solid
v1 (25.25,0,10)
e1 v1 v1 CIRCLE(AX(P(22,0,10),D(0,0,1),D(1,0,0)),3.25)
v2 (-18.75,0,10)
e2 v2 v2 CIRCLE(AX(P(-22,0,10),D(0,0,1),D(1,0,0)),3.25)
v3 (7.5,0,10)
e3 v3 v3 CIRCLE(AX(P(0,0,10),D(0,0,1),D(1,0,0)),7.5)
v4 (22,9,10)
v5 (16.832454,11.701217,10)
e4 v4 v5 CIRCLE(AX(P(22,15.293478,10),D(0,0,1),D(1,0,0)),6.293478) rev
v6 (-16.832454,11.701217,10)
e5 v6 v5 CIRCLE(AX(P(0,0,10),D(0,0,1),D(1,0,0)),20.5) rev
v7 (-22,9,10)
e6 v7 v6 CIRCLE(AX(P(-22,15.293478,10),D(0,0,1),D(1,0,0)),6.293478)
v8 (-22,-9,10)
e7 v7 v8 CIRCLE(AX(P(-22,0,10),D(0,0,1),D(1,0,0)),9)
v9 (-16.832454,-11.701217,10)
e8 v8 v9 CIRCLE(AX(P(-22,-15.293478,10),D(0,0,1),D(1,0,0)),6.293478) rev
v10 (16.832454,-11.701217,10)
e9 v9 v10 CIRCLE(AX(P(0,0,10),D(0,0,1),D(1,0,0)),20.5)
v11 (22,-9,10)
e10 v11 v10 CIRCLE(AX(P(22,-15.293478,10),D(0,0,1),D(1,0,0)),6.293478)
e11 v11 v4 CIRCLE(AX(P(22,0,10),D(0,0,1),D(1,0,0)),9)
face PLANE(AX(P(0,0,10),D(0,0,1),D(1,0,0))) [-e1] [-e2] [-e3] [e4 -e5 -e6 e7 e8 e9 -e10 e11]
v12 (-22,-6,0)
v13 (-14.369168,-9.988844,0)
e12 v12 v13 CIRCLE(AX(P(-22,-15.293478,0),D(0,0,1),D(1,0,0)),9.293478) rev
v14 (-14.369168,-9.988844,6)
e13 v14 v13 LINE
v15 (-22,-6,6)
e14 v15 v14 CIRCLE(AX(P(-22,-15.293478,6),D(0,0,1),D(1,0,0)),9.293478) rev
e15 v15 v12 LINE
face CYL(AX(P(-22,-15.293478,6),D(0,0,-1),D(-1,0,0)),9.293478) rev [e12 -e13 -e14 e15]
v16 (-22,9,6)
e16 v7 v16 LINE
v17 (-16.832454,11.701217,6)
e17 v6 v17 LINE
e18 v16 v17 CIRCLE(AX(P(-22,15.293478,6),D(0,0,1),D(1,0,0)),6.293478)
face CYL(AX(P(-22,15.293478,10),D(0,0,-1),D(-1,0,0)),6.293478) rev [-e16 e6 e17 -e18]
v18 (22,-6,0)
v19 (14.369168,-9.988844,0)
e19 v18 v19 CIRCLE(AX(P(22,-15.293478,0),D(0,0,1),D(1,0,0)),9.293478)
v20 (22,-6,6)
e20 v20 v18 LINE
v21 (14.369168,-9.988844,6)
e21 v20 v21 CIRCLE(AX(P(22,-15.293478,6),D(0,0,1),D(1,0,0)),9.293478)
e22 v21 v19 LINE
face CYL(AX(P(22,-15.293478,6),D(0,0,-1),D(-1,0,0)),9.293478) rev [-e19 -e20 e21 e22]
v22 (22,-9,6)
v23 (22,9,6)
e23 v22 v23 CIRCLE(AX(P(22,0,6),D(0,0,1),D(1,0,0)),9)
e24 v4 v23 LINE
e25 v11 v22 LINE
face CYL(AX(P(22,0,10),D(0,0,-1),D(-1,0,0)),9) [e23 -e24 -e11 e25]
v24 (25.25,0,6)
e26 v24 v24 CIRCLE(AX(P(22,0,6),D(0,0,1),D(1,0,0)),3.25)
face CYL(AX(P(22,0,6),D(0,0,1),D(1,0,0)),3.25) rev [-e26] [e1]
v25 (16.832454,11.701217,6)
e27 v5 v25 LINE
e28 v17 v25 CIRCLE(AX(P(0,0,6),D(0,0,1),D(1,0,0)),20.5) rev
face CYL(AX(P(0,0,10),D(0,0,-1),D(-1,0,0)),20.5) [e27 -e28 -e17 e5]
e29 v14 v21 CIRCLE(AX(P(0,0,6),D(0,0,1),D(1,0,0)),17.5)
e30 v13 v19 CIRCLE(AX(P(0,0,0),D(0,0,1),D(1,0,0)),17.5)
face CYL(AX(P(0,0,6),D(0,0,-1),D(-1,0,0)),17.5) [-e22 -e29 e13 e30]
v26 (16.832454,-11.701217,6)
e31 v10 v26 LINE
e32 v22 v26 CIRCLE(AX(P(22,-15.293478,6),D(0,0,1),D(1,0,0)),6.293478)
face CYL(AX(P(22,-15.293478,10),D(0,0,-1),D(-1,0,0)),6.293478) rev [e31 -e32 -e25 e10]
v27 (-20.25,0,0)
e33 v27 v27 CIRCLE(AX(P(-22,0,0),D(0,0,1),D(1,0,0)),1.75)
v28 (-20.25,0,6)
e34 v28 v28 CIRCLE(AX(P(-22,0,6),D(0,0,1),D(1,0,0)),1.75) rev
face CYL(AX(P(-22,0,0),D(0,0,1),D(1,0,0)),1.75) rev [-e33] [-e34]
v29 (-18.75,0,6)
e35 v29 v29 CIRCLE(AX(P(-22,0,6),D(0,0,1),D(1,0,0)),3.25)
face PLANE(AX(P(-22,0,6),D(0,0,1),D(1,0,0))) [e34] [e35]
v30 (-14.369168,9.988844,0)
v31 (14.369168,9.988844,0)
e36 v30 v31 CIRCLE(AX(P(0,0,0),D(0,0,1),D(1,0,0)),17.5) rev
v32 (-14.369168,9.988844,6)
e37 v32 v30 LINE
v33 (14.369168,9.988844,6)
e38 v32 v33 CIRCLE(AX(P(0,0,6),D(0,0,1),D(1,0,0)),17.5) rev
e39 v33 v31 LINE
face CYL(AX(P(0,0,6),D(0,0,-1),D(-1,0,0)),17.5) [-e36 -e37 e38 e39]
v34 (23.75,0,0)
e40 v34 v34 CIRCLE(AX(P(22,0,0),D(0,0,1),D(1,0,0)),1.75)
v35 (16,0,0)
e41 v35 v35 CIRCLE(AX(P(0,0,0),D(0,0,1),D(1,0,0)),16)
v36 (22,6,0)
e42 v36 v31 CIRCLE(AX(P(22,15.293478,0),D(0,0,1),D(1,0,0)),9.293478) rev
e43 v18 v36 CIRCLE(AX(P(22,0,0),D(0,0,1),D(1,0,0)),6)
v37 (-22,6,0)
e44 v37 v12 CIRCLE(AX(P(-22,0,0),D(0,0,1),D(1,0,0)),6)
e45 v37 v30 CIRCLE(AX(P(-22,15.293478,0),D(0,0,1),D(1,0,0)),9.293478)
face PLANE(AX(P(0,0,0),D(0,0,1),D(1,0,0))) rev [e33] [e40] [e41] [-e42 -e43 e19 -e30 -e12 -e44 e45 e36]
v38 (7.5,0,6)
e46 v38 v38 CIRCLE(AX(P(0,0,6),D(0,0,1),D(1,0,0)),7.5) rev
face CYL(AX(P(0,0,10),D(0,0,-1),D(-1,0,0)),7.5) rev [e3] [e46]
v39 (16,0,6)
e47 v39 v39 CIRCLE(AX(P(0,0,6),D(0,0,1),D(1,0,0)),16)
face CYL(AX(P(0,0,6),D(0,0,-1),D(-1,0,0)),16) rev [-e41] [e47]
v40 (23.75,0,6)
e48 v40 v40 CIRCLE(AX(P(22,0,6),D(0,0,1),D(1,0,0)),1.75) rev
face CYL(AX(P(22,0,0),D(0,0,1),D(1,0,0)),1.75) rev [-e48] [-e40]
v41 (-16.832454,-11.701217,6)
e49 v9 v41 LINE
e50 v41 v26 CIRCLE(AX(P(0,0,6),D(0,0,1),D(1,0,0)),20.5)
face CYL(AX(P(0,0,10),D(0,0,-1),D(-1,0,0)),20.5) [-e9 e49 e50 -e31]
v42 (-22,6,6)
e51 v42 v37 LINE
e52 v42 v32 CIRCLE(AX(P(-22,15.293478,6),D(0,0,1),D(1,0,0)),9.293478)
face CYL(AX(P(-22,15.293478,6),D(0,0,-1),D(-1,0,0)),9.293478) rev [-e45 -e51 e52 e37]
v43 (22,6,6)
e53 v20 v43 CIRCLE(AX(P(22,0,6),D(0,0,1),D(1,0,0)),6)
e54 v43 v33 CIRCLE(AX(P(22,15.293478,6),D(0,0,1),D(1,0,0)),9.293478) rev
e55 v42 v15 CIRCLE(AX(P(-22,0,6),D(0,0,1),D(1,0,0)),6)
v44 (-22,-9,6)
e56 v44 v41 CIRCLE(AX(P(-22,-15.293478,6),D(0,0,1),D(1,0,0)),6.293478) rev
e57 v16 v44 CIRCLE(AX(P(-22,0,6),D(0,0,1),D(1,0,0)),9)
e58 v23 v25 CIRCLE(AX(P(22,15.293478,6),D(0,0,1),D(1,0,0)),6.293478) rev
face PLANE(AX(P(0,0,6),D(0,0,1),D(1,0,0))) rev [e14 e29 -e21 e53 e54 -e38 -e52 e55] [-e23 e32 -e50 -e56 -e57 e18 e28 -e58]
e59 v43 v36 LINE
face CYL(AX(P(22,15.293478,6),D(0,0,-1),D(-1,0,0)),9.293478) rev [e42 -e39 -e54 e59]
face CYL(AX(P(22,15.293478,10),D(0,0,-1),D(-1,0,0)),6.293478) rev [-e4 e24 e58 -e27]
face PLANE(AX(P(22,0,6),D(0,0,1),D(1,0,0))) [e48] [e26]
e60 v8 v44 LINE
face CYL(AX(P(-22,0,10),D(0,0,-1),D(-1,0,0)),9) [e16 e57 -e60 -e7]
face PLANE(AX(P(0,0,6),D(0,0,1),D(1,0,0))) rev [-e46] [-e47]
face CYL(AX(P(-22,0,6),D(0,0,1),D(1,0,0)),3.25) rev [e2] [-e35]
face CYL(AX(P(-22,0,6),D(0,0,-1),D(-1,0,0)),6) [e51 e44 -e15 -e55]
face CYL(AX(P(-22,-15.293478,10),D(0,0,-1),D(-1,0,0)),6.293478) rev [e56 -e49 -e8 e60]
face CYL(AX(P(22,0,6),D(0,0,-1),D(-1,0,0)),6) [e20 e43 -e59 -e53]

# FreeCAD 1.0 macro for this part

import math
import FreeCAD as App
import Part
import Sketcher

V = App.Vector

doc = App.newDocument("Part")
body = doc.addObject("PartDesign::Body", "Body")

# Sketch on XY plane
sketch1 = doc.addObject("Sketcher::SketchObject", "Sketch")
body.addObject(sketch1)
sketch1.AttachmentSupport = (doc.XY_Plane, [""])
sketch1.MapMode = "FlatFace"
sketch1.addGeometry([
    Part.ArcOfCircle(Part.Circle(V(-22, 15, 0), V(0, 0, 1), 6), math.radians(-90), math.radians(-35)),  # 0
    Part.ArcOfCircle(Part.Circle(V(-22, 0, 0), V(0, 0, 1), 9), math.radians(90), math.radians(270)),  # 1
    Part.ArcOfCircle(Part.Circle(V(-22, -15, 0), V(0, 0, 1), 6), math.radians(35), math.radians(90)),  # 2
    Part.ArcOfCircle(Part.Circle(V(0, 0, 0), V(0, 0, 1), 21), math.radians(-145), math.radians(-35)),  # 3
    Part.ArcOfCircle(Part.Circle(V(22, -15, 0), V(0, 0, 1), 6), math.radians(90), math.radians(145)),  # 4
    Part.ArcOfCircle(Part.Circle(V(22, 0, 0), V(0, 0, 1), 9), math.radians(-90), math.radians(90)),  # 5
    Part.ArcOfCircle(Part.Circle(V(22, 15, 0), V(0, 0, 1), 6), math.radians(-145), math.radians(-90)),  # 6
    Part.ArcOfCircle(Part.Circle(V(0, 0, 0), V(0, 0, 1), 21), math.radians(35), math.radians(145)),  # 7
], False)
sketch1.addConstraint([
    Sketcher.Constraint("Tangent", 0, 1, 1, 1),
    Sketcher.Constraint("Tangent", 1, 2, 2, 2),
    Sketcher.Constraint("Tangent", 2, 1, 3, 1),
    Sketcher.Constraint("Tangent", 3, 2, 4, 2),
    Sketcher.Constraint("Tangent", 4, 1, 5, 1),
    Sketcher.Constraint("Tangent", 5, 2, 6, 2),
    Sketcher.Constraint("Tangent", 6, 1, 7, 1),
    Sketcher.Constraint("Tangent", 7, 2, 0, 2),
    Sketcher.Constraint("Coincident", 3, 3, -1, 1),
    Sketcher.Constraint("Coincident", 7, 3, -1, 1),
    Sketcher.Constraint("Equal", 0, 2),
    Sketcher.Constraint("Equal", 2, 4),
    Sketcher.Constraint("Equal", 1, 5),
    Sketcher.Constraint("Equal", 4, 6),
    Sketcher.Constraint("Equal", 3, 7),
    Sketcher.Constraint("Symmetric", 1, 3, 5, 3, -1, 1),
    Sketcher.Constraint("PointOnObject", 1, 3, -1),
    Sketcher.Constraint("Vertical", 0, 3, 1, 3),
    Sketcher.Constraint("Radius", 1, 9.0),
    Sketcher.Constraint("Radius", 3, 20.5),
    Sketcher.Constraint("DistanceX", 0, 3, -1, 1, 22.0),
])
pad1 = doc.addObject("PartDesign::Pad", "Pad")
body.addObject(pad1)
pad1.Profile = sketch1
pad1.Length = 10

# Sketch on XY plane
sketch2 = doc.addObject("Sketcher::SketchObject", "Sketch001")
body.addObject(sketch2)
sketch2.AttachmentSupport = (doc.XY_Plane, [""])
sketch2.MapMode = "FlatFace"
sketch2.addGeometry([
    Part.Circle(V(0, 0, 0), V(0, 0, 1), 16),
    Part.Circle(V(0, 0, 0), V(0, 0, 1), 8),
], False)
sketch2.addConstraint([
    Sketcher.Constraint("Coincident", 0, 3, -1, 1),
    Sketcher.Constraint("Coincident", 1, 3, -1, 1),
    Sketcher.Constraint("Diameter", 0, 32.0),
    Sketcher.Constraint("Diameter", 1, 15.0),
])
pocket1 = doc.addObject("PartDesign::Pocket", "Pocket")
body.addObject(pocket1)
pocket1.Profile = sketch2
pocket1.Length = 6
pocket1.Reversed = True

# Sketch on XY plane
sketch3 = doc.addObject("Sketcher::SketchObject", "Sketch002")
body.addObject(sketch3)
sketch3.AttachmentSupport = (doc.XY_Plane, [""])
sketch3.MapMode = "FlatFace"
sketch3.addGeometry(Part.Circle(V(0, 0, 0), V(0, 0, 1), 8), False)
sketch3.addConstraint([
    Sketcher.Constraint("Coincident", 0, 3, -1, 1),
    Sketcher.Constraint("Diameter", 0, 15.0),
])
pocket2 = doc.addObject("PartDesign::Pocket", "Pocket001")
body.addObject(pocket2)
pocket2.Profile = sketch3
pocket2.Length = 10
pocket2.Reversed = True

# Sketch on XY plane
sketch4 = doc.addObject("Sketcher::SketchObject", "Sketch003")
body.addObject(sketch4)
sketch4.AttachmentSupport = (doc.XY_Plane, [""])
sketch4.MapMode = "FlatFace"
sketch4.addGeometry([
    Part.ArcOfCircle(Part.Circle(V(-22, 15, 0), V(0, 0, 1), 6), math.radians(-90), math.radians(-35)),  # 0
    Part.ArcOfCircle(Part.Circle(V(-22, 0, 0), V(0, 0, 1), 9), math.radians(90), math.radians(270)),  # 1
    Part.ArcOfCircle(Part.Circle(V(-22, -15, 0), V(0, 0, 1), 6), math.radians(35), math.radians(90)),  # 2
    Part.ArcOfCircle(Part.Circle(V(0, 0, 0), V(0, 0, 1), 21), math.radians(-145), math.radians(-35)),  # 3
    Part.ArcOfCircle(Part.Circle(V(22, -15, 0), V(0, 0, 1), 6), math.radians(90), math.radians(145)),  # 4
    Part.ArcOfCircle(Part.Circle(V(22, 0, 0), V(0, 0, 1), 9), math.radians(-90), math.radians(90)),  # 5
    Part.ArcOfCircle(Part.Circle(V(22, 15, 0), V(0, 0, 1), 6), math.radians(-145), math.radians(-90)),  # 6
    Part.ArcOfCircle(Part.Circle(V(0, 0, 0), V(0, 0, 1), 21), math.radians(35), math.radians(145)),  # 7
    Part.ArcOfCircle(Part.Circle(V(-22, -15, 0), V(0, 0, 1), 9), math.radians(35), math.radians(90)),  # 8
    Part.ArcOfCircle(Part.Circle(V(-22, 0, 0), V(0, 0, 1), 6), math.radians(90), math.radians(270)),  # 9
    Part.ArcOfCircle(Part.Circle(V(-22, 15, 0), V(0, 0, 1), 9), math.radians(-90), math.radians(-35)),  # 10
    Part.ArcOfCircle(Part.Circle(V(0, 0, 0), V(0, 0, 1), 17), math.radians(35), math.radians(145)),  # 11
    Part.ArcOfCircle(Part.Circle(V(22, 15, 0), V(0, 0, 1), 9), math.radians(-145), math.radians(-90)),  # 12
    Part.ArcOfCircle(Part.Circle(V(22, 0, 0), V(0, 0, 1), 6), math.radians(-90), math.radians(90)),  # 13
    Part.ArcOfCircle(Part.Circle(V(22, -15, 0), V(0, 0, 1), 9), math.radians(90), math.radians(145)),  # 14
    Part.ArcOfCircle(Part.Circle(V(0, 0, 0), V(0, 0, 1), 17), math.radians(-145), math.radians(-35)),  # 15
], False)
sketch4.addConstraint([
    Sketcher.Constraint("Tangent", 0, 1, 1, 1),
    Sketcher.Constraint("Tangent", 1, 2, 2, 2),
    Sketcher.Constraint("Tangent", 2, 1, 3, 1),
    Sketcher.Constraint("Tangent", 3, 2, 4, 2),
    Sketcher.Constraint("Tangent", 4, 1, 5, 1),
    Sketcher.Constraint("Tangent", 5, 2, 6, 2),
    Sketcher.Constraint("Tangent", 6, 1, 7, 1),
    Sketcher.Constraint("Tangent", 7, 2, 0, 2),
    Sketcher.Constraint("Tangent", 8, 2, 9, 2),
    Sketcher.Constraint("Tangent", 9, 1, 10, 1),
    Sketcher.Constraint("Tangent", 10, 2, 11, 2),
    Sketcher.Constraint("Tangent", 11, 1, 12, 1),
    Sketcher.Constraint("Tangent", 12, 2, 13, 2),
    Sketcher.Constraint("Tangent", 13, 1, 14, 1),
    Sketcher.Constraint("Tangent", 14, 2, 15, 2),
    Sketcher.Constraint("Tangent", 15, 1, 8, 1),
    Sketcher.Constraint("Coincident", 3, 3, -1, 1),
    Sketcher.Constraint("Coincident", 7, 3, -1, 1),
    Sketcher.Constraint("Coincident", 11, 3, -1, 1),
    Sketcher.Constraint("Coincident", 15, 3, -1, 1),
    Sketcher.Constraint("Coincident", 8, 3, 2, 3),
    Sketcher.Constraint("Coincident", 9, 3, 1, 3),
    Sketcher.Constraint("Coincident", 10, 3, 0, 3),
    Sketcher.Constraint("Coincident", 12, 3, 6, 3),
    Sketcher.Constraint("Coincident", 13, 3, 5, 3),
    Sketcher.Constraint("Equal", 0, 2),
    Sketcher.Constraint("Equal", 2, 4),
    Sketcher.Constraint("Equal", 1, 5),
    Sketcher.Constraint("Equal", 4, 6),
    Sketcher.Constraint("Equal", 3, 7),
    Sketcher.Constraint("Equal", 12, 14),
    Sketcher.Constraint("Symmetric", 1, 3, 5, 3, -1, 1),
    Sketcher.Constraint("PointOnObject", 1, 3, -1),
    Sketcher.Constraint("Vertical", 0, 3, 1, 3),
    Sketcher.Constraint("Radius", 1, 9.0),
    Sketcher.Constraint("Radius", 9, 6.0),
    Sketcher.Constraint("Radius", 3, 20.5),
    Sketcher.Constraint("DistanceX", 0, 3, -1, 1, 22.0),
])
pocket3 = doc.addObject("PartDesign::Pocket", "Pocket002")
body.addObject(pocket3)
pocket3.Profile = sketch4
pocket3.Length = 6
pocket3.Reversed = True

# Sketch on XY plane
sketch5 = doc.addObject("Sketcher::SketchObject", "Sketch004")
body.addObject(sketch5)
sketch5.AttachmentSupport = (doc.XY_Plane, [""])
sketch5.MapMode = "FlatFace"
sketch5.AttachmentOffset = App.Placement(V(0, 0, 10), App.Rotation())
sketch5.addGeometry([
    Part.Circle(V(22, 0, 0), V(0, 0, 1), 1.8),
    Part.Circle(V(-22, 0, 0), V(0, 0, 1), 1.8),
], False)
sketch5.addConstraint([
    Sketcher.Constraint("Equal", 0, 1),
    Sketcher.Constraint("Symmetric", 0, 3, 1, 3, -1, 1),
    Sketcher.Constraint("PointOnObject", 0, 3, -1),
    Sketcher.Constraint("Diameter", 0, 3.5),
    Sketcher.Constraint("DistanceX", -1, 1, 0, 3, 22.0),
])
pocket4 = doc.addObject("PartDesign::Pocket", "Pocket003")
body.addObject(pocket4)
pocket4.Profile = sketch5
pocket4.Length = 10

# Sketch on XY plane
sketch6 = doc.addObject("Sketcher::SketchObject", "Sketch005")
body.addObject(sketch6)
sketch6.AttachmentSupport = (doc.XY_Plane, [""])
sketch6.MapMode = "FlatFace"
sketch6.AttachmentOffset = App.Placement(V(0, 0, 10), App.Rotation())
sketch6.addGeometry([
    Part.Circle(V(22, 0, 0), V(0, 0, 1), 3.2),
    Part.Circle(V(-22, 0, 0), V(0, 0, 1), 3.2),
], False)
sketch6.addConstraint([
    Sketcher.Constraint("Equal", 0, 1),
    Sketcher.Constraint("Symmetric", 0, 3, 1, 3, -1, 1),
    Sketcher.Constraint("PointOnObject", 0, 3, -1),
    Sketcher.Constraint("Diameter", 0, 6.5),
    Sketcher.Constraint("DistanceX", -1, 1, 0, 3, 22.0),
])
pocket5 = doc.addObject("PartDesign::Pocket", "Pocket004")
body.addObject(pocket5)
pocket5.Profile = sketch6
pocket5.Length = 4

doc.recompute()
